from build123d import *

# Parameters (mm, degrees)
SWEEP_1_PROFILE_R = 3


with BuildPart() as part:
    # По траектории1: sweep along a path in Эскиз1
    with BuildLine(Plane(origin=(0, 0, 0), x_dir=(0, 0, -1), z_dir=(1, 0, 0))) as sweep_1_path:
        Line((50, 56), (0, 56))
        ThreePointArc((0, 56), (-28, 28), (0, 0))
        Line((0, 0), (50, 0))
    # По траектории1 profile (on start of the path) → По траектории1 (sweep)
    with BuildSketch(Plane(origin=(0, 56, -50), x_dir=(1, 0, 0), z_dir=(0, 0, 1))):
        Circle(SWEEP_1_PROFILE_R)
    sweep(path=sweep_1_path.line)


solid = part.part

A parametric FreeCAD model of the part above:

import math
import FreeCAD as App
import Part
import Sketcher
from FreeCAD import Vector

doc = App.newDocument("Part")
body = doc.addObject("PartDesign::Body", "Body")

# Sketch on XY plane
sketch1 = body.newObject("Sketcher::SketchObject", "Sketch")
sketch1.AttachmentSupport = (doc.getObject("XY_Plane"), [""])
sketch1.MapMode = "FlatFace"
sketch1.AttachmentOffset = App.Placement(Vector(0, 0, -50), App.Rotation())
sketch1.addGeometry(Part.Circle(Vector(0, 56, 0), Vector(0, 0, 1), 3), False)
sketch1.addConstraint(Sketcher.Constraint("PointOnObject", 0, 3, -2))
sketch1.addConstraint(Sketcher.Constraint("Diameter", 0, 6.0))
sketch1.addConstraint(Sketcher.Constraint("DistanceY", -1, 1, 0, 3, 56.0))

# Sketch on YZ plane
sketch2 = body.newObject("Sketcher::SketchObject", "Sketch001")
sketch2.AttachmentSupport = (doc.getObject("YZ_Plane"), [""])
sketch2.MapMode = "FlatFace"
sketch2.addGeometry(Part.LineSegment(Vector(56, -50, 0), Vector(56, 0, 0)), False)
sketch2.addGeometry(Part.ArcOfCircle(Part.Circle(Vector(28, 0, 0), Vector(0, 0, 1), 28), math.radians(0), math.radians(180)), False)
sketch2.addGeometry(Part.LineSegment(Vector(0, 0, 0), Vector(0, -50, 0)), False)
sketch2.addConstraint(Sketcher.Constraint("Tangent", 0, 2, 1, 1))
sketch2.addConstraint(Sketcher.Constraint("Tangent", 1, 2, 2, 1))
sketch2.addConstraint(Sketcher.Constraint("Vertical", 0))
sketch2.addConstraint(Sketcher.Constraint("Vertical", 2))
sketch2.addConstraint(Sketcher.Constraint("Coincident", 1, 2, -1, 1))
sketch2.addConstraint(Sketcher.Constraint("Horizontal", 0, 1, 2, 2))
sketch2.addConstraint(Sketcher.Constraint("Radius", 1, 28.0))
sketch2.addConstraint(Sketcher.Constraint("DistanceY", 0, 1, 0, 2, 50.0))
doc.recompute()

additivepipe = body.newObject("PartDesign::AdditivePipe", "AdditivePipe")
additivepipe.Profile = sketch1
additivepipe.Spine = (sketch2, ["Edge1", "Edge2", "Edge3"])

doc.recompute()
